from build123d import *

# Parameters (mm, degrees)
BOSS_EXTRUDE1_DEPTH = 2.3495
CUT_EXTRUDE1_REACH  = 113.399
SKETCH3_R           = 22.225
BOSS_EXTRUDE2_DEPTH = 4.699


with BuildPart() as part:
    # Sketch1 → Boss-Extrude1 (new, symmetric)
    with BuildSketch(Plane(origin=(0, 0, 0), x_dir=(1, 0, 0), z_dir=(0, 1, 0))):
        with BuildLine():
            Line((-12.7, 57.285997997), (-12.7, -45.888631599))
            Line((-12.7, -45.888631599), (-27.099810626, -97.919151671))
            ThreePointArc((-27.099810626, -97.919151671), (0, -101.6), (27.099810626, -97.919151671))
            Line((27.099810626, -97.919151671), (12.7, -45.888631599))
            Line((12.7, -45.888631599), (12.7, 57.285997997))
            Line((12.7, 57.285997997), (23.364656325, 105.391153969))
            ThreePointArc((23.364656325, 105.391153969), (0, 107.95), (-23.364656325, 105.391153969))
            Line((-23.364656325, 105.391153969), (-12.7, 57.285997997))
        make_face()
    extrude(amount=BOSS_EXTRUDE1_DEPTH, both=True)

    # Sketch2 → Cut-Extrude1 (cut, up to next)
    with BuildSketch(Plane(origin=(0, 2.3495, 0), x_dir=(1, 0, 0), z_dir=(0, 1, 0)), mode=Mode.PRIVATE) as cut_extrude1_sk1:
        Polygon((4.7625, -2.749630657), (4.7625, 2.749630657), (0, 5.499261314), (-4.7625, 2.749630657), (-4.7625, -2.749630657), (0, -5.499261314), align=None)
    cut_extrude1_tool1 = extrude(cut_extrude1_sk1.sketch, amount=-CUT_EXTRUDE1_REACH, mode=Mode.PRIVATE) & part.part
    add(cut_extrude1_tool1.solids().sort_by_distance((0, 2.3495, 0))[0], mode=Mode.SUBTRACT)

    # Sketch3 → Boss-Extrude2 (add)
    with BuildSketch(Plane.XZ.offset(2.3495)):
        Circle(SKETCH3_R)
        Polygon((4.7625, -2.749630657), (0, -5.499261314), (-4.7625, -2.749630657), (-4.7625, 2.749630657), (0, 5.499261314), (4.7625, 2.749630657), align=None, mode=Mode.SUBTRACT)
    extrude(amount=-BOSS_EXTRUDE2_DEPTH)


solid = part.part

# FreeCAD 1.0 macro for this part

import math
import FreeCAD as App
import Part
import Sketcher

V = App.Vector
Q = App.Units.Quantity


def add_polygon(sketch, points):
    """Adds a closed chain of lines whose ends are joined by coincident constraints."""
    first, n = sketch.GeometryCount, len(points)
    for a, b in zip(points, points[1:] + points[:1]):
        sketch.addGeometry(Part.LineSegment(App.Vector(*a, 0), App.Vector(*b, 0)), False)
    for i in range(n):
        sketch.addConstraint(Sketcher.Constraint("Coincident", first + i, 2, first + (i + 1) % n, 1))

doc = App.newDocument("Part")
body = doc.addObject("PartDesign::Body", "Body")

# Sketch on XZ plane
sketch1 = body.newObject("Sketcher::SketchObject", "Sketch")
sketch1.AttachmentSupport = (doc.getObject("XZ_Plane"), [""])
sketch1.MapMode = "FlatFace"
sketch1.addGeometry(Part.LineSegment(V(-13, -57, 0), V(-13, 46, 0)), False)
sketch1.addGeometry(Part.LineSegment(V(-13, 46, 0), V(-27, 98, 0)), False)
sketch1.addGeometry(Part.ArcOfCircle(Part.Circle(V(0, 0, 0), V(0, 0, 1), 102), math.radians(75), math.radians(105)), False)
sketch1.addGeometry(Part.LineSegment(V(27, 98, 0), V(13, 46, 0)), False)
sketch1.addGeometry(Part.LineSegment(V(13, 46, 0), V(13, -57, 0)), False)
sketch1.addGeometry(Part.LineSegment(V(13, -57, 0), V(23, -105, 0)), False)
sketch1.addGeometry(Part.ArcOfCircle(Part.Circle(V(0, 0, 0), V(0, 0, 1), 108), math.radians(-102), math.radians(-78)), False)
sketch1.addGeometry(Part.LineSegment(V(-23, -105, 0), V(-13, -57, 0)), False)
sketch1.addConstraint(Sketcher.Constraint("Coincident", 0, 2, 1, 1))
sketch1.addConstraint(Sketcher.Constraint("Coincident", 1, 2, 2, 2))
sketch1.addConstraint(Sketcher.Constraint("Coincident", 2, 1, 3, 1))
sketch1.addConstraint(Sketcher.Constraint("Coincident", 3, 2, 4, 1))
sketch1.addConstraint(Sketcher.Constraint("Coincident", 4, 2, 5, 1))
sketch1.addConstraint(Sketcher.Constraint("Coincident", 5, 2, 6, 2))
sketch1.addConstraint(Sketcher.Constraint("Coincident", 6, 1, 7, 1))
sketch1.addConstraint(Sketcher.Constraint("Coincident", 7, 2, 0, 1))
sketch1.addConstraint(Sketcher.Constraint("Vertical", 0))
sketch1.addConstraint(Sketcher.Constraint("Vertical", 4))
sketch1.addConstraint(Sketcher.Constraint("Coincident", 2, 3, -1, 1))
sketch1.addConstraint(Sketcher.Constraint("Coincident", 6, 3, -1, 1))
sketch1.addConstraint(Sketcher.Constraint("Symmetric", 0, 2, 3, 2, -2))
sketch1.addConstraint(Sketcher.Constraint("Horizontal", 1, 2, 2, 1))
sketch1.addConstraint(Sketcher.Constraint("Horizontal", 5, 2, 6, 1))
sketch1.addConstraint(Sketcher.Constraint("Horizontal", 4, 2, 7, 2))
sketch1.addConstraint(Sketcher.Constraint("Radius", 2, Q("4 in")))
sketch1.addConstraint(Sketcher.Constraint("Radius", 6, Q("4.25 in")))
sketch1.addConstraint(Sketcher.Constraint("DistanceX", 0, 2, 3, 2, Q("1 in")))
sketch1.addConstraint(Sketcher.Constraint("Angle", 5, Q("-77.5 deg")))
sketch1.addConstraint(Sketcher.Constraint("DistanceY", 0, 1, 0, 2, 103.17463))
sketch1.addConstraint(Sketcher.Constraint("DistanceY", 4, 2, 2, 3, 57.285998))
sketch1.addConstraint(Sketcher.Constraint("DistanceX", 1, 2, -1, 1, 27.099811))
pad1 = body.newObject("PartDesign::Pad", "Pad")
pad1.Profile = sketch1
pad1.Length = Q("0.185 in")
pad1.Midplane = True

# Sketch on XZ plane
sketch2 = body.newObject("Sketcher::SketchObject", "Sketch001")
sketch2.AttachmentSupport = (doc.getObject("XZ_Plane"), [""])
sketch2.MapMode = "FlatFace"
sketch2.AttachmentOffset = App.Placement(V(0, 0, -0.0925 * 25.4), App.Rotation())
add_polygon(sketch2, [(5, 3), (5, -3), (0, -5), (-5, -3), (-5, 3), (0, 5)])  # lines 0-5
sketch2.addConstraint(Sketcher.Constraint("Vertical", 0))
sketch2.addConstraint(Sketcher.Constraint("Vertical", 3))
sketch2.addConstraint(Sketcher.Constraint("Symmetric", 0, 2, 3, 2, -1, 1))
sketch2.addConstraint(Sketcher.Constraint("Symmetric", 1, 2, 4, 2, -1, 1))
sketch2.addConstraint(Sketcher.Constraint("PointOnObject", 1, 2, -2))
sketch2.addConstraint(Sketcher.Constraint("Parallel", 2, 5))
sketch2.addConstraint(Sketcher.Constraint("Horizontal", 0, 2, 2, 2))
sketch2.addConstraint(Sketcher.Constraint("Angle", 1, Q("-150 deg")))
sketch2.addConstraint(Sketcher.Constraint("DistanceX", -1, 1, 0, 2, Q("0.1875 in")))
sketch2.addConstraint(Sketcher.Constraint("DistanceY", 0, 2, 0, 1, 5.499261))
pocket1 = body.newObject("PartDesign::Pocket", "Pocket")
pocket1.Profile = sketch2
pocket1.Type = "UpToFirst"
pocket1.Reversed = True

# Sketch on XZ plane
sketch3 = body.newObject("Sketcher::SketchObject", "Sketch002")
sketch3.AttachmentSupport = (doc.getObject("XZ_Plane"), [""])
sketch3.MapMode = "FlatFace"
sketch3.AttachmentOffset = App.Placement(V(0, 0, 0.0925 * 25.4), App.Rotation())
sketch3.addGeometry(Part.Circle(V(0, 0, 0), V(0, 0, 1), 22), False)  # 0
add_polygon(sketch3, [(5, 3), (5, -3), (0, -5), (-5, -3), (-5, 3), (0, 5)])  # lines 1-6
sketch3.addConstraint(Sketcher.Constraint("Vertical", 1))
sketch3.addConstraint(Sketcher.Constraint("Vertical", 4))
sketch3.addConstraint(Sketcher.Constraint("Coincident", 0, 3, -1, 1))
sketch3.addConstraint(Sketcher.Constraint("Symmetric", 1, 2, 4, 2, -1, 1))
sketch3.addConstraint(Sketcher.Constraint("Symmetric", 2, 2, 5, 2, -1, 1))
sketch3.addConstraint(Sketcher.Constraint("PointOnObject", 2, 2, -2))
sketch3.addConstraint(Sketcher.Constraint("Parallel", 3, 6))
sketch3.addConstraint(Sketcher.Constraint("Horizontal", 1, 2, 3, 2))
sketch3.addConstraint(Sketcher.Constraint("Diameter", 0, Q("1.75 in")))
sketch3.addConstraint(Sketcher.Constraint("Angle", 2, Q("-150 deg")))
sketch3.addConstraint(Sketcher.Constraint("DistanceX", -1, 1, 1, 2, Q("0.1875 in")))
sketch3.addConstraint(Sketcher.Constraint("DistanceY", 1, 2, 1, 1, 5.499261))
pad2 = body.newObject("PartDesign::Pad", "Pad001")
pad2.Profile = sketch3
pad2.Length = Q("0.185 in")
pad2.Reversed = True

doc.recompute()
